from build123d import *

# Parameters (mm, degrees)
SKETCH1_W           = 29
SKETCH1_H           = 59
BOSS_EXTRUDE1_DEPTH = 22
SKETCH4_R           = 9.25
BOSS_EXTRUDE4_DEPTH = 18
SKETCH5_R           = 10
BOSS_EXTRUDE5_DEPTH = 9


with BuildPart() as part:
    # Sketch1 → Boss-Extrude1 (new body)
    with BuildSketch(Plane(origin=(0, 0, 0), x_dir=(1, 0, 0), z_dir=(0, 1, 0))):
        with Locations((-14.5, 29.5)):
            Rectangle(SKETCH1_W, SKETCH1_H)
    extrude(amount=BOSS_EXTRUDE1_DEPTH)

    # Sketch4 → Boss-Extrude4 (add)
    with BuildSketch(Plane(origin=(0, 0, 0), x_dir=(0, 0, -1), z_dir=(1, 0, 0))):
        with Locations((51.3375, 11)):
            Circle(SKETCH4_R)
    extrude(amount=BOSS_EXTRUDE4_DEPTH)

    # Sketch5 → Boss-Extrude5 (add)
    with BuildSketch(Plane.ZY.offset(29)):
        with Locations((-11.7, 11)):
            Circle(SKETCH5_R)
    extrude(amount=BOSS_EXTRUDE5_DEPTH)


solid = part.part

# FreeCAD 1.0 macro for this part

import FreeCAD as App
import Part
import Sketcher
from FreeCAD import Vector

doc = App.newDocument("Part")
params = doc.addObject("Spreadsheet::Sheet", "Params")
for row, (alias, value) in enumerate([
    ("sketch1_width", "29 mm"),
    ("sketch1_height", "59 mm"),
    ("pad1_length", "22 mm"),
    ("sketch2_diameter", "18.5 mm"),
    ("pad2_length", "18 mm"),
    ("sketch3_diameter", "20 mm"),
    ("pad3_length", "9 mm"),
], start=1):
    params.set(f"A{row}", alias)
    params.set(f"B{row}", "=" + value)
    params.setAlias(f"B{row}", alias)

body = doc.addObject("PartDesign::Body", "Body")

sketch1 = doc.addObject("Sketcher::SketchObject", "Sketch")
body.addObject(sketch1)
sketch1.AttachmentSupport = (doc.XZ_Plane, [""])
sketch1.MapMode = "FlatFace"
sketch1.addGeometry([
    Part.LineSegment(Vector(-29, -59, 0), Vector(-29, 0, 0)),
    Part.LineSegment(Vector(-29, 0, 0), Vector(0, 0, 0)),
    Part.LineSegment(Vector(0, 0, 0), Vector(0, -59, 0)),
    Part.LineSegment(Vector(0, -59, 0), Vector(-29, -59, 0)),
], False)
sketch1.addConstraint([
    Sketcher.Constraint("Coincident", 0, 2, 1, 1),
    Sketcher.Constraint("Coincident", 1, 2, 2, 1),
    Sketcher.Constraint("Coincident", 2, 2, 3, 1),
    Sketcher.Constraint("Coincident", 3, 2, 0, 1),
    Sketcher.Constraint("Vertical", 0),
    Sketcher.Constraint("Horizontal", 1),
    Sketcher.Constraint("Vertical", 2),
    Sketcher.Constraint("Horizontal", 3),
    Sketcher.Constraint("Coincident", 1, 2, -1, 1),
    Sketcher.Constraint("DistanceX", 1, 1, 1, 2, 29.0),
    Sketcher.Constraint("DistanceY", 0, 1, 0, 2, 59.0),
])
sketch1.setExpression("Constraints[9]", "Params.sketch1_width")
sketch1.setExpression("Constraints[10]", "Params.sketch1_height")
pad1 = doc.addObject("PartDesign::Pad", "Pad")
body.addObject(pad1)
pad1.Profile = sketch1
pad1.setExpression("Length", "Params.pad1_length")
pad1.Reversed = True

sketch2 = doc.addObject("Sketcher::SketchObject", "Sketch001")
body.addObject(sketch2)
sketch2.AttachmentSupport = (doc.YZ_Plane, [""])
sketch2.MapMode = "FlatFace"
sketch2.addGeometry(Part.Circle(Vector(11, -51, 0), Vector(0, 0, 1), 9), False)
sketch2.addConstraint([
    Sketcher.Constraint("Diameter", 0, 18.5),
    Sketcher.Constraint("DistanceX", -1, 1, 0, 3, 11.0),
    Sketcher.Constraint("DistanceY", 0, 3, -1, 1, 51.3375),
])
sketch2.setExpression("Constraints[0]", "Params.sketch2_diameter")
pad2 = doc.addObject("PartDesign::Pad", "Pad001")
body.addObject(pad2)
pad2.Profile = sketch2
pad2.setExpression("Length", "Params.pad2_length")

sketch3 = doc.addObject("Sketcher::SketchObject", "Sketch002")
body.addObject(sketch3)
sketch3.AttachmentSupport = (doc.YZ_Plane, [""])
sketch3.MapMode = "FlatFace"
sketch3.AttachmentOffset = App.Placement(Vector(0, 0, -29), App.Rotation())
sketch3.addGeometry(Part.Circle(Vector(11, -12, 0), Vector(0, 0, 1), 10), False)
sketch3.addConstraint([
    Sketcher.Constraint("Diameter", 0, 20.0),
    Sketcher.Constraint("DistanceX", -1, 1, 0, 3, 11.0),
    Sketcher.Constraint("DistanceY", 0, 3, -1, 1, 11.7),
])
sketch3.setExpression("Constraints[0]", "Params.sketch3_diameter")
pad3 = doc.addObject("PartDesign::Pad", "Pad002")
body.addObject(pad3)
pad3.Profile = sketch3
pad3.setExpression("Length", "Params.pad3_length")
pad3.Reversed = True

doc.recompute()
